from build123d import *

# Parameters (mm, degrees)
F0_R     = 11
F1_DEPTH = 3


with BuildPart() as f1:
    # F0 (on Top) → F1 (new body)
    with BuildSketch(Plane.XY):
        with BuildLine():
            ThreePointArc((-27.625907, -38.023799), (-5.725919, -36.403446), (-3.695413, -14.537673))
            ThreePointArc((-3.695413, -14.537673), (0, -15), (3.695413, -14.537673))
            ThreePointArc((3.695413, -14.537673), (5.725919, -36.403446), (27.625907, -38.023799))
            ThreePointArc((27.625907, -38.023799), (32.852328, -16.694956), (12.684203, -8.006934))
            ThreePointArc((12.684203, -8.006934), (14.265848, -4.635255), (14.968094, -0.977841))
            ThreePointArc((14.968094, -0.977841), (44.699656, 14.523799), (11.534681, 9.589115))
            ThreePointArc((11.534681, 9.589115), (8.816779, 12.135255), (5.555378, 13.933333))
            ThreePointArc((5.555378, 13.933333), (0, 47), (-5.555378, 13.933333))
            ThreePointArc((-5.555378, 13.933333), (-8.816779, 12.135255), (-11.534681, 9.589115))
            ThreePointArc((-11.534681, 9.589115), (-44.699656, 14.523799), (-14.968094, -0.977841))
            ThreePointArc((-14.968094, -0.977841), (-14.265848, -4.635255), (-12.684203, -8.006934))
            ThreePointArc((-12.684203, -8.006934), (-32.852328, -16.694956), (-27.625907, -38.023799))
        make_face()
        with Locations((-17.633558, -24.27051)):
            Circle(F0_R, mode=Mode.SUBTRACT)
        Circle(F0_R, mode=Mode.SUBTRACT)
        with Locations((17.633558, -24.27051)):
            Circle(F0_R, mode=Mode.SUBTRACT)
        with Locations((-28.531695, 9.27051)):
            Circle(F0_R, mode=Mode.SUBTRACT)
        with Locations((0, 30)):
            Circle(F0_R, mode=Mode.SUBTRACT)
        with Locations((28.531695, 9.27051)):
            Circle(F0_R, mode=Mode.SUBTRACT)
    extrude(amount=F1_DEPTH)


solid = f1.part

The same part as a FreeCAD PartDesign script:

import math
import FreeCAD as App
import Part
import Sketcher

V = App.Vector
Q = App.Units.Quantity

doc = App.newDocument("Part")
body = doc.addObject("PartDesign::Body", "Body")

# Sketch on XY plane
sketch1 = body.newObject("Sketcher::SketchObject", "Sketch")
sketch1.AttachmentSupport = (doc.getObject("XY_Plane"), [""])
sketch1.MapMode = "FlatFace"
sketch1.addGeometry([
    Part.ArcOfCircle(Part.Circle(V(-17.633558, -24.27051, 0), V(0, 0, 1), 17), math.radians(-125.999999), math.radians(34.926128)),  # 0
    Part.ArcOfCircle(Part.Circle(V(0, 0.000015, 0), V(0, 0, 1), 15.000015), math.radians(-104.262257), math.radians(-75.737743)),  # 1
    Part.ArcOfCircle(Part.Circle(V(17.633558, -24.27051, 0), V(0, 0, 1), 17), math.radians(145.073872), math.radians(305.999999)),  # 2
    Part.ArcOfCircle(Part.Circle(V(17.633557, -24.27051, 0), V(0, 0, 1), 17), math.radians(-53.999998), math.radians(106.926126)),  # 3
    Part.ArcOfCircle(Part.Circle(V(0.000004, 0, 0), V(0, 0, 1), 14.999996), math.radians(-32.262276), math.radians(-3.737728)),  # 4
    Part.ArcOfCircle(Part.Circle(V(28.531695, 9.270511, 0), V(0, 0, 1), 17), math.radians(-142.926125), math.radians(178.926134)),  # 5
    Part.ArcOfCircle(Part.Circle(V(0.000008, 0.000012, 0), V(0, 0, 1), 14.999986), math.radians(39.737717), math.radians(68.262282)),  # 6
    Part.ArcOfCircle(Part.Circle(V(0, 30, 0), V(0, 0, 1), 17), math.radians(-70.926129), math.radians(250.926129)),  # 7
    Part.ArcOfCircle(Part.Circle(V(-0.000008, 0.000012, 0), V(0, 0, 1), 14.999986), math.radians(111.737718), math.radians(140.262283)),  # 8
    Part.ArcOfCircle(Part.Circle(V(-28.531695, 9.270511, 0), V(0, 0, 1), 17), math.radians(1.073866), math.radians(322.926125)),  # 9
    Part.ArcOfCircle(Part.Circle(V(-0.000004, 0, 0), V(0, 0, 1), 14.999996), math.radians(-176.262272), math.radians(-147.737724)),  # 10
    Part.ArcOfCircle(Part.Circle(V(-17.633557, -24.27051, 0), V(0, 0, 1), 17), math.radians(73.073874), math.radians(233.999998)),  # 11
    Part.Circle(V(-17.633558, -24.27051, 0), V(0, 0, 1), 11),  # 12
    Part.Circle(V(17.633558, -24.27051, 0), V(0, 0, 1), 11),  # 13
    Part.Circle(V(0, 0, 0), V(0, 0, 1), 11),  # 14
    Part.Circle(V(-28.531695, 9.27051, 0), V(0, 0, 1), 11),  # 15
    Part.Circle(V(28.531695, 9.27051, 0), V(0, 0, 1), 11),  # 16
    Part.Circle(V(0, 30, 0), V(0, 0, 1), 11),  # 17
], False)
sketch1.addConstraint([
    Sketcher.Constraint("Coincident", 0, 2, 1, 1),
    Sketcher.Constraint("Coincident", 1, 2, 2, 1),
    Sketcher.Constraint("Tangent", 2, 2, 3, 1),
    Sketcher.Constraint("Coincident", 3, 2, 4, 1),
    Sketcher.Constraint("Coincident", 4, 2, 5, 1),
    Sketcher.Constraint("Coincident", 5, 2, 6, 1),
    Sketcher.Constraint("Coincident", 6, 2, 7, 1),
    Sketcher.Constraint("Coincident", 7, 2, 8, 1),
    Sketcher.Constraint("Coincident", 8, 2, 9, 1),
    Sketcher.Constraint("Coincident", 9, 2, 10, 1),
    Sketcher.Constraint("Coincident", 10, 2, 11, 1),
    Sketcher.Constraint("Tangent", 11, 2, 0, 1),
    Sketcher.Constraint("Coincident", 4, 3, -1, 1),
    Sketcher.Constraint("Coincident", 10, 3, -1, 1),
    Sketcher.Constraint("Coincident", 14, 3, -1, 1),
    Sketcher.Constraint("Coincident", 6, 3, 1, 3),
    Sketcher.Constraint("Coincident", 8, 3, 1, 3),
    Sketcher.Constraint("Coincident", 12, 3, 0, 3),
    Sketcher.Constraint("Coincident", 13, 3, 2, 3),
    Sketcher.Constraint("Coincident", 15, 3, 9, 3),
    Sketcher.Constraint("Coincident", 16, 3, 5, 3),
    Sketcher.Constraint("Coincident", 17, 3, 7, 3),
    Sketcher.Constraint("Equal", 0, 2),
    Sketcher.Constraint("Equal", 2, 3),
    Sketcher.Constraint("Equal", 3, 5),
    Sketcher.Constraint("Equal", 5, 7),
    Sketcher.Constraint("Equal", 6, 8),
    Sketcher.Constraint("Equal", 7, 9),
    Sketcher.Constraint("Equal", 4, 10),
    Sketcher.Constraint("Equal", 9, 11),
    Sketcher.Constraint("Equal", 12, 13),
    Sketcher.Constraint("Equal", 13, 14),
    Sketcher.Constraint("Equal", 14, 15),
    Sketcher.Constraint("Equal", 15, 16),
    Sketcher.Constraint("Equal", 16, 17),
    Sketcher.Constraint("Symmetric", 0, 3, 2, 3, -2),
    Sketcher.Constraint("Symmetric", 5, 3, 9, 3, -2),
    Sketcher.Constraint("Symmetric", 6, 2, 7, 2, -2),
    Sketcher.Constraint("Horizontal", 2, 2, 11, 2),
    Sketcher.Constraint("Diameter", 12, Q("22 mm")),
    Sketcher.Constraint("Radius", 0, Q("17 mm")),
    Sketcher.Constraint("DistanceY", -1, 1, 7, 3, Q("30 mm")),
    Sketcher.Constraint("Radius", 1, Q("15.000015 mm")),
    Sketcher.Constraint("Radius", 4, Q("14.999996 mm")),
    Sketcher.Constraint("Radius", 6, Q("14.999986 mm")),
    Sketcher.Constraint("DistanceY", 2, 2, -1, 1, Q("38.023799 mm")),
    Sketcher.Constraint("DistanceY", 6, 3, 5, 3, Q("9.2705 mm")),
    Sketcher.Constraint("DistanceX", 9, 3, 4, 3, Q("28.531699 mm")),
    Sketcher.Constraint("DistanceX", 4, 3, 3, 2, Q("12.684199 mm")),
    Sketcher.Constraint("DistanceY", 0, 3, -1, 1, Q("24.27051 mm")),
    Sketcher.Constraint("DistanceY", -1, 1, 5, 3, Q("9.270511 mm")),
])
pad1 = body.newObject("PartDesign::Pad", "Pad")
pad1.Profile = sketch1
pad1.Length = 3

doc.recompute()
